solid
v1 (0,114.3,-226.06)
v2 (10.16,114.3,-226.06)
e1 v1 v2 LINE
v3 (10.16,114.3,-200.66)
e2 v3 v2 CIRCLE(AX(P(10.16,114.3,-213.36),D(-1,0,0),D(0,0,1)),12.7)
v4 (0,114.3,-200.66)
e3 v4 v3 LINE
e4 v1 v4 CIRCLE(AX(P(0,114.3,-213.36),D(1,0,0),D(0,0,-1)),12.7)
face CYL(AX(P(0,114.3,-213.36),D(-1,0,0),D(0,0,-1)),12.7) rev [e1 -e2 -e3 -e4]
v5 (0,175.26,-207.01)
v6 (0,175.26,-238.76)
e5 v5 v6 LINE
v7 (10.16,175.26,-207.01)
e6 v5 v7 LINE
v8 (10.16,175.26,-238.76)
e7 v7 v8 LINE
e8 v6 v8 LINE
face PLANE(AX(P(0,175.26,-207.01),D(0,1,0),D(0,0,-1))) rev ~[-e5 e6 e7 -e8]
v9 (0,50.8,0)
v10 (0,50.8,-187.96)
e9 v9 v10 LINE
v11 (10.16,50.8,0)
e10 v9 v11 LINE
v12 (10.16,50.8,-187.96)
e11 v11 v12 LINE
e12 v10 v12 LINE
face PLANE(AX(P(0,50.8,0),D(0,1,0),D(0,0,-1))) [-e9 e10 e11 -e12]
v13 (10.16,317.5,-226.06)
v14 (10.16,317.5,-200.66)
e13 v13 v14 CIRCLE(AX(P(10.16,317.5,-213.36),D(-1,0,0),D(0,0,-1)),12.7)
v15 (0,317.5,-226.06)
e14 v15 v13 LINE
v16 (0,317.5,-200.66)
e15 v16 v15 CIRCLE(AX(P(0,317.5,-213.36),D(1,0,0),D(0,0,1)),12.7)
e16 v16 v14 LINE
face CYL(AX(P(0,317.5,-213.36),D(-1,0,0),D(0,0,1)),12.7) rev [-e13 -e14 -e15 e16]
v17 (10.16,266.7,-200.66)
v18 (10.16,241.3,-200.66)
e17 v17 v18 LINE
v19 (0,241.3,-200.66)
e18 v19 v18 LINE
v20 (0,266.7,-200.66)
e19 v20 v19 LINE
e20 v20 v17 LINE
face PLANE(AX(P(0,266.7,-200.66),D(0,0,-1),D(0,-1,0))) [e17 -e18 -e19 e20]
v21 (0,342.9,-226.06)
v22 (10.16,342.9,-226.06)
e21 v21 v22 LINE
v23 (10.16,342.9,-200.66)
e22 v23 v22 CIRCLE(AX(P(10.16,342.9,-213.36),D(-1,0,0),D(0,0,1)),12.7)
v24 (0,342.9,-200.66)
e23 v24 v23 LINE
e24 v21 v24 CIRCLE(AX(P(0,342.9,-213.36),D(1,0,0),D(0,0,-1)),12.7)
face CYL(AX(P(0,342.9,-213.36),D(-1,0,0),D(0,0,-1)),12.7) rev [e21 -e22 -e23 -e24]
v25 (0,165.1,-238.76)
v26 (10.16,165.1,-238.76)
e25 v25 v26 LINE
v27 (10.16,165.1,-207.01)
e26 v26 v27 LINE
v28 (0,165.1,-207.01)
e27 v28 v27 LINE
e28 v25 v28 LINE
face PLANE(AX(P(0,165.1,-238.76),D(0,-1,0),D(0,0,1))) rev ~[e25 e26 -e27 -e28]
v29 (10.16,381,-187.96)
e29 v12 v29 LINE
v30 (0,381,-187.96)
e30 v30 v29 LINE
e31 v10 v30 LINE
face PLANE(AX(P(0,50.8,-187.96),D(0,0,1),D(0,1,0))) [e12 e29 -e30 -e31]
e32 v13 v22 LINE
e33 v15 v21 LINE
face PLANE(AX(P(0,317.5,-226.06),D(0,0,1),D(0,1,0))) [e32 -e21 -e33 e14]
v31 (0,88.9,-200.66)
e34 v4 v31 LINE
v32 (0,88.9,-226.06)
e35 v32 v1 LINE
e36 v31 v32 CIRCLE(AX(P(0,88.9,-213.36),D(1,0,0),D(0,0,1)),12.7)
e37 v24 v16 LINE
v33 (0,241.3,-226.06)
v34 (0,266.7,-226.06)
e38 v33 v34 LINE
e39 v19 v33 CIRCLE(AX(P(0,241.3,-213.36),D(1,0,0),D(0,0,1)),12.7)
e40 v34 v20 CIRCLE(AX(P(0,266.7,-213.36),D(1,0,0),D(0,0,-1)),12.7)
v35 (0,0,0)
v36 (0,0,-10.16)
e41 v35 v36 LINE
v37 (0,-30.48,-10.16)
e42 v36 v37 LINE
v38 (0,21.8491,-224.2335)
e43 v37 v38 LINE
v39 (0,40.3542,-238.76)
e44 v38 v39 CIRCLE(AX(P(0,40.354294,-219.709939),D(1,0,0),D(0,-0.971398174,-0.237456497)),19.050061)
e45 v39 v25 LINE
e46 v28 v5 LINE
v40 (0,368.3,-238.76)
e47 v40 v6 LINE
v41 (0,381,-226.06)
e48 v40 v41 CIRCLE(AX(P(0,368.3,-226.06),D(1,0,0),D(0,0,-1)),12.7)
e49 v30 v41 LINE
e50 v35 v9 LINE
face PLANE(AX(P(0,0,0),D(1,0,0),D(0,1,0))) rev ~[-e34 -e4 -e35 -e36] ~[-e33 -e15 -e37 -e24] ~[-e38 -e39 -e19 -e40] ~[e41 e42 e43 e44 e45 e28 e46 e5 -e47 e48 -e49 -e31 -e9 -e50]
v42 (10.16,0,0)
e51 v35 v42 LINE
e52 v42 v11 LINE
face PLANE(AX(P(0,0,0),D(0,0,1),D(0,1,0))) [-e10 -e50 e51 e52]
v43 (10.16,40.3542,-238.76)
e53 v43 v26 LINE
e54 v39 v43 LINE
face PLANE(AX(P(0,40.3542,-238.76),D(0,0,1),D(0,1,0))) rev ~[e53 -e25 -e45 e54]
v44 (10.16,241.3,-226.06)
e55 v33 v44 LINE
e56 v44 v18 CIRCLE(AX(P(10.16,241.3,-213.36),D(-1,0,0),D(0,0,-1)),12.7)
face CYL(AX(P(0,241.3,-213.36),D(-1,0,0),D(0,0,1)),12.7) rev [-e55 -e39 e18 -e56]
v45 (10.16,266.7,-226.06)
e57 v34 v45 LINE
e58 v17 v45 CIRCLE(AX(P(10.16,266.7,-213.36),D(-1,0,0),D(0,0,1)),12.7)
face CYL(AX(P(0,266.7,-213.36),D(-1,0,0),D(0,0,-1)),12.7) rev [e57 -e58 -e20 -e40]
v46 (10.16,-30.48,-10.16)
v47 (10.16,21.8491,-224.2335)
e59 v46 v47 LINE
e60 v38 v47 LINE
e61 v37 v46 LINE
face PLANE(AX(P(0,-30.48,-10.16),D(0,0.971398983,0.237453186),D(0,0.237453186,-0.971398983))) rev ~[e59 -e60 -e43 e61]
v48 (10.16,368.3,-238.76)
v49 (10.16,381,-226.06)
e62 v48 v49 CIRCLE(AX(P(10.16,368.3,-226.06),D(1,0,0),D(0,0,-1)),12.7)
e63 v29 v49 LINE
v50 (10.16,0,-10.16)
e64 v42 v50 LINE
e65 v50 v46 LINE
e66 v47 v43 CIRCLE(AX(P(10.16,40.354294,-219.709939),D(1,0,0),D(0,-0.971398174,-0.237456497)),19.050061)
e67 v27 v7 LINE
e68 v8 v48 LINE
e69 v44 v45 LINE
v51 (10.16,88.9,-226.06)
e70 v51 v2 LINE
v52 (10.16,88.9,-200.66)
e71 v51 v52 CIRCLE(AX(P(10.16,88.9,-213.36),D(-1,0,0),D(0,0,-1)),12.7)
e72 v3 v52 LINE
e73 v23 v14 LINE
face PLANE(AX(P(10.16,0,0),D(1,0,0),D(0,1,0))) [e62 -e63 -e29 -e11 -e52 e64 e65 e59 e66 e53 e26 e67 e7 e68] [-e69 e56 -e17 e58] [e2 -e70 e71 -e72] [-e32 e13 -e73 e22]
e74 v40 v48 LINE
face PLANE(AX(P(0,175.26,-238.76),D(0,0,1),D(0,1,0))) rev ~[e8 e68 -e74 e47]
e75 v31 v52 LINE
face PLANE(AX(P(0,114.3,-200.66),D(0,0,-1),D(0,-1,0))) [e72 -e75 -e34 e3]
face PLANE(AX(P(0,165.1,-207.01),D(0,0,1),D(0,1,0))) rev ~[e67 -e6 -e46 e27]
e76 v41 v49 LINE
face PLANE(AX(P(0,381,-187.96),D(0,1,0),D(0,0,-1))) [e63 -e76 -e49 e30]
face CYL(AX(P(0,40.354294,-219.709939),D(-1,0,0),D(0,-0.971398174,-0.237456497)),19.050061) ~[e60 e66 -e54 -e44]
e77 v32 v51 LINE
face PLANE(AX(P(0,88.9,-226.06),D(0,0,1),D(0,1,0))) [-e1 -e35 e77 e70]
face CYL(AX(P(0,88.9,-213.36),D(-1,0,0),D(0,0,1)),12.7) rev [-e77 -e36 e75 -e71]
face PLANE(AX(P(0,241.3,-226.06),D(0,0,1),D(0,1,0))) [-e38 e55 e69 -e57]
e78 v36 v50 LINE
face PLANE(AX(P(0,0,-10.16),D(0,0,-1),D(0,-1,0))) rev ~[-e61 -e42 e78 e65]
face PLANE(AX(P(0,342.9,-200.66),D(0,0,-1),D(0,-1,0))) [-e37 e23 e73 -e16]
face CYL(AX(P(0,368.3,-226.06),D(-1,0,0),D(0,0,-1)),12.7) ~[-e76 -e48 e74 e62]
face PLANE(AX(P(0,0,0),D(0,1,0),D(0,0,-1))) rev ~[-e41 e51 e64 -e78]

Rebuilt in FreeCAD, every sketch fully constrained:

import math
import FreeCAD as App
import Part
import Sketcher
from FreeCAD import Vector
Q = App.Units.Quantity

doc = App.newDocument("Part")
body = doc.addObject("PartDesign::Body", "Body")

# Sketch on YZ plane
sketch1 = doc.addObject("Sketcher::SketchObject", "Sketch")
body.addObject(sketch1)
sketch1.AttachmentSupport = (doc.YZ_Plane, [""])
sketch1.MapMode = "FlatFace"
sketch1.addGeometry([
    Part.LineSegment(Vector(51, 0, 0), Vector(0, 0, 0)),  # 0
    Part.LineSegment(Vector(0, 0, 0), Vector(0, -10, 0)),  # 1
    Part.LineSegment(Vector(0, -10, 0), Vector(-30, -10, 0)),  # 2
    Part.LineSegment(Vector(-30, -10, 0), Vector(22, -224, 0)),  # 3
    Part.ArcOfCircle(Part.Circle(Vector(40, -220, 0), Vector(0, 0, 1), 19), math.radians(-166), math.radians(-90)),  # 4
    Part.LineSegment(Vector(40, -239, 0), Vector(165, -239, 0)),  # 5
    Part.LineSegment(Vector(165, -239, 0), Vector(165, -207, 0)),  # 6
    Part.LineSegment(Vector(165, -207, 0), Vector(175, -207, 0)),  # 7
    Part.LineSegment(Vector(175, -207, 0), Vector(175, -239, 0)),  # 8
    Part.LineSegment(Vector(175, -239, 0), Vector(368, -239, 0)),  # 9
    Part.ArcOfCircle(Part.Circle(Vector(368, -226, 0), Vector(0, 0, 1), 13), math.radians(-90), math.radians(0)),  # 10
    Part.LineSegment(Vector(381, -226, 0), Vector(381, -188, 0)),  # 11
    Part.LineSegment(Vector(381, -188, 0), Vector(51, -188, 0)),  # 12
    Part.LineSegment(Vector(51, -188, 0), Vector(51, 0, 0)),  # 13
    Part.LineSegment(Vector(89, -201, 0), Vector(114, -201, 0)),  # 14
    Part.ArcOfCircle(Part.Circle(Vector(114, -213, 0), Vector(0, 0, 1), 13), math.radians(-90), math.radians(90)),  # 15
    Part.LineSegment(Vector(114, -226, 0), Vector(89, -226, 0)),  # 16
    Part.ArcOfCircle(Part.Circle(Vector(89, -213, 0), Vector(0, 0, 1), 13), math.radians(90), math.radians(270)),  # 17
    Part.LineSegment(Vector(241, -201, 0), Vector(267, -201, 0)),  # 18
    Part.ArcOfCircle(Part.Circle(Vector(267, -213, 0), Vector(0, 0, 1), 13), math.radians(-90), math.radians(90)),  # 19
    Part.LineSegment(Vector(267, -226, 0), Vector(241, -226, 0)),  # 20
    Part.ArcOfCircle(Part.Circle(Vector(241, -213, 0), Vector(0, 0, 1), 13), math.radians(90), math.radians(270)),  # 21
    Part.LineSegment(Vector(318, -201, 0), Vector(343, -201, 0)),  # 22
    Part.ArcOfCircle(Part.Circle(Vector(343, -213, 0), Vector(0, 0, 1), 13), math.radians(-90), math.radians(90)),  # 23
    Part.LineSegment(Vector(343, -226, 0), Vector(318, -226, 0)),  # 24
    Part.ArcOfCircle(Part.Circle(Vector(318, -213, 0), Vector(0, 0, 1), 13), math.radians(90), math.radians(270)),  # 25
], False)
sketch1.addConstraint([
    Sketcher.Constraint("Coincident", 0, 2, 1, 1),
    Sketcher.Constraint("Coincident", 1, 2, 2, 1),
    Sketcher.Constraint("Coincident", 2, 2, 3, 1),
    Sketcher.Constraint("Tangent", 3, 2, 4, 1),
    Sketcher.Constraint("Tangent", 4, 2, 5, 1),
    Sketcher.Constraint("Coincident", 5, 2, 6, 1),
    Sketcher.Constraint("Coincident", 6, 2, 7, 1),
    Sketcher.Constraint("Coincident", 7, 2, 8, 1),
    Sketcher.Constraint("Coincident", 8, 2, 9, 1),
    Sketcher.Constraint("Tangent", 9, 2, 10, 1),
    Sketcher.Constraint("Tangent", 10, 2, 11, 1),
    Sketcher.Constraint("Coincident", 11, 2, 12, 1),
    Sketcher.Constraint("Coincident", 12, 2, 13, 1),
    Sketcher.Constraint("Coincident", 13, 2, 0, 1),
    Sketcher.Constraint("Tangent", 14, 2, 15, 2),
    Sketcher.Constraint("Tangent", 15, 1, 16, 1),
    Sketcher.Constraint("Tangent", 16, 2, 17, 2),
    Sketcher.Constraint("Tangent", 17, 1, 14, 1),
    Sketcher.Constraint("Tangent", 18, 2, 19, 2),
    Sketcher.Constraint("Tangent", 19, 1, 20, 1),
    Sketcher.Constraint("Tangent", 20, 2, 21, 2),
    Sketcher.Constraint("Tangent", 21, 1, 18, 1),
    Sketcher.Constraint("Tangent", 22, 2, 23, 2),
    Sketcher.Constraint("Tangent", 23, 1, 24, 1),
    Sketcher.Constraint("Tangent", 24, 2, 25, 2),
    Sketcher.Constraint("Tangent", 25, 1, 22, 1),
    Sketcher.Constraint("Horizontal", 0),
    Sketcher.Constraint("Vertical", 1),
    Sketcher.Constraint("Horizontal", 2),
    Sketcher.Constraint("Horizontal", 5),
    Sketcher.Constraint("Vertical", 6),
    Sketcher.Constraint("Horizontal", 7),
    Sketcher.Constraint("Vertical", 8),
    Sketcher.Constraint("Horizontal", 9),
    Sketcher.Constraint("Vertical", 11),
    Sketcher.Constraint("Horizontal", 12),
    Sketcher.Constraint("Vertical", 13),
    Sketcher.Constraint("Horizontal", 14),
    Sketcher.Constraint("Horizontal", 16),
    Sketcher.Constraint("Horizontal", 18),
    Sketcher.Constraint("Horizontal", 20),
    Sketcher.Constraint("Horizontal", 22),
    Sketcher.Constraint("Horizontal", 24),
    Sketcher.Constraint("Coincident", 0, 2, -1, 1),
    Sketcher.Constraint("Equal", 10, 15),
    Sketcher.Constraint("Equal", 17, 19),
    Sketcher.Constraint("Equal", 21, 23),
    Sketcher.Constraint("Horizontal", 17, 3, 19, 3),
    Sketcher.Constraint("Horizontal", 21, 3, 23, 3),
    Sketcher.Constraint("Horizontal", 5, 2, 8, 2),
    Sketcher.Constraint("Horizontal", 10, 2, 15, 1),
    Sketcher.Constraint("Equal", 16, 18),
    Sketcher.Constraint("Equal", 20, 22),
    Sketcher.Constraint("Equal", 7, 1),
    Sketcher.Constraint("Radius", 10, Q("0.5 in")),
    Sketcher.Constraint("DistanceX", 0, 2, 0, 1, Q("2 in")),
    Sketcher.Constraint("DistanceX", 12, 2, 12, 1, Q("13 in")),
    Sketcher.Constraint("DistanceX", 14, 1, 14, 2, Q("1 in")),
    Sketcher.Constraint("Radius", 4, Q("0.75 in")),
    Sketcher.Constraint("DistanceX", 2, 2, 2, 1, Q("1.2 in")),
    Sketcher.Constraint("DistanceX", 7, 1, 7, 2, Q("0.4 in")),
    Sketcher.Constraint("DistanceY", 13, 1, 13, 2, Q("7.4 in")),
    Sketcher.Constraint("DistanceX", 23, 3, 10, 3, Q("1 in")),
    Sketcher.Constraint("DistanceX", 19, 3, 25, 3, Q("2 in")),
    Sketcher.Constraint("DistanceX", 15, 3, 5, 2, Q("2 in")),
    Sketcher.Constraint("DistanceY", 23, 3, 11, 2, Q("1 in")),
    Sketcher.Constraint("DistanceY", 6, 1, 6, 2, Q("1.25 in")),
    Sketcher.Constraint("DistanceX", -1, 1, 15, 3, Q("4.5 in")),
    Sketcher.Constraint("DistanceX", 5, 1, 5, 2, 124.7458),
])
pad1 = doc.addObject("PartDesign::Pad", "Pad")
body.addObject(pad1)
pad1.Profile = sketch1
pad1.Length = Q("0.4 in")

doc.recompute()
